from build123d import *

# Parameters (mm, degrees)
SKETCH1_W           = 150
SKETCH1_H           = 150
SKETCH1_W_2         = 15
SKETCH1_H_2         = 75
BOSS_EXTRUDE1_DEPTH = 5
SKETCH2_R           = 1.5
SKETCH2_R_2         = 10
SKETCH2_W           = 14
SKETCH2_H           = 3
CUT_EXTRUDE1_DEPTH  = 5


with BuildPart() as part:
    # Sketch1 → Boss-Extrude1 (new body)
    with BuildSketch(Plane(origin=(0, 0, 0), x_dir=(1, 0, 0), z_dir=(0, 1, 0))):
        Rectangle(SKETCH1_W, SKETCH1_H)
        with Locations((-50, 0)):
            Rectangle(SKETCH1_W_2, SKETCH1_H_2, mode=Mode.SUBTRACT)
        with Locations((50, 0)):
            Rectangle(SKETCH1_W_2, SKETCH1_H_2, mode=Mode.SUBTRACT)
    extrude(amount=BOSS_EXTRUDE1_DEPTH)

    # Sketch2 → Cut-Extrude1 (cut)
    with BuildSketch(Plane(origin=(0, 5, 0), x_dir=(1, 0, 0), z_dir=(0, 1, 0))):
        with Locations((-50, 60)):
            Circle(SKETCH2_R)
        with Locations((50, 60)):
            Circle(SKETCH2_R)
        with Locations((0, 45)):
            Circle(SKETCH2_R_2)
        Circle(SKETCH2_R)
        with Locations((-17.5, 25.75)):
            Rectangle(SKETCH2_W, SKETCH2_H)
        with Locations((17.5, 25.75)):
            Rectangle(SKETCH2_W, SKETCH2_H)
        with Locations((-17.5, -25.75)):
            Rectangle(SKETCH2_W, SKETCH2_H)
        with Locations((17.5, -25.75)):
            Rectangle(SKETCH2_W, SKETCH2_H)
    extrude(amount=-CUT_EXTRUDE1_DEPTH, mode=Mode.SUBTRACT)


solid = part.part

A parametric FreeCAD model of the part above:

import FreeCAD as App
import Part
import Sketcher
from FreeCAD import Vector


def add_polygon(sketch, points):
    """Adds a closed chain of lines whose ends are joined by coincident constraints."""
    first, n = sketch.GeometryCount, len(points)
    for a, b in zip(points, points[1:] + points[:1]):
        sketch.addGeometry(Part.LineSegment(App.Vector(*a, 0), App.Vector(*b, 0)), False)
    for i in range(n):
        sketch.addConstraint(Sketcher.Constraint("Coincident", first + i, 2, first + (i + 1) % n, 1))

doc = App.newDocument("Part")
body = doc.addObject("PartDesign::Body", "Body")

# Sketch on XZ plane
sketch1 = doc.addObject("Sketcher::SketchObject", "Sketch")
body.addObject(sketch1)
sketch1.AttachmentSupport = (doc.XZ_Plane, [""])
sketch1.MapMode = "FlatFace"
add_polygon(sketch1, [(-75, -75), (-75, 75), (75, 75), (75, -75)])  # lines 0-3
add_polygon(sketch1, [(-42, 38), (-58, 38), (-58, -38), (-42, -38)])  # lines 4-7
add_polygon(sketch1, [(58, 38), (42, 38), (42, -38), (58, -38)])  # lines 8-11
sketch1.addConstraint([
    Sketcher.Constraint("Vertical", 0),
    Sketcher.Constraint("Horizontal", 1),
    Sketcher.Constraint("Vertical", 2),
    Sketcher.Constraint("Horizontal", 3),
    Sketcher.Constraint("Horizontal", 4),
    Sketcher.Constraint("Vertical", 5),
    Sketcher.Constraint("Horizontal", 6),
    Sketcher.Constraint("Vertical", 7),
    Sketcher.Constraint("Horizontal", 8),
    Sketcher.Constraint("Vertical", 9),
    Sketcher.Constraint("Horizontal", 10),
    Sketcher.Constraint("Vertical", 11),
    Sketcher.Constraint("Symmetric", 0, 2, 2, 2, -1, 1),
    Sketcher.Constraint("Symmetric", 6, 2, 8, 2, -1, 1),
    Sketcher.Constraint("Symmetric", 4, 2, 10, 2, -1, 1),
    Sketcher.Constraint("Horizontal", 7, 2, 8, 2),
    Sketcher.Constraint("Equal", 3, 0),
    Sketcher.Constraint("DistanceX", 1, 1, 1, 2, 150.0),
    Sketcher.Constraint("DistanceX", 4, 2, 4, 1, 15.0),
    Sketcher.Constraint("DistanceY", 5, 2, 5, 1, 75.0),
    Sketcher.Constraint("DistanceX", 7, 2, 8, 2, 85.0),
])
pad1 = doc.addObject("PartDesign::Pad", "Pad")
body.addObject(pad1)
pad1.Profile = sketch1
pad1.Length = 5
pad1.Reversed = True

# Sketch on XZ plane
sketch2 = doc.addObject("Sketcher::SketchObject", "Sketch001")
body.addObject(sketch2)
sketch2.AttachmentSupport = (doc.XZ_Plane, [""])
sketch2.MapMode = "FlatFace"
sketch2.AttachmentOffset = App.Placement(Vector(0, 0, -5), App.Rotation())
sketch2.addGeometry(Part.Circle(Vector(-50, -60, 0), Vector(0, 0, 1), 1.5), False)  # 0
sketch2.addGeometry(Part.Circle(Vector(50, -60, 0), Vector(0, 0, 1), 1.5), False)  # 1
sketch2.addGeometry(Part.Circle(Vector(0, -45, 0), Vector(0, 0, 1), 10), False)  # 2
sketch2.addGeometry(Part.Circle(Vector(0, 0, 0), Vector(0, 0, 1), 1.5), False)  # 3
add_polygon(sketch2, [(-24.5, -27.2), (-24.5, -24.2), (-10.5, -24.2), (-10.5, -27.2)])  # lines 4-7
add_polygon(sketch2, [(10.5, -27.2), (10.5, -24.2), (24.5, -24.2), (24.5, -27.2)])  # lines 8-11
add_polygon(sketch2, [(-24.5, 24.2), (-24.5, 27.2), (-10.5, 27.2), (-10.5, 24.2)])  # lines 12-15
add_polygon(sketch2, [(10.5, 24.2), (10.5, 27.2), (24.5, 27.2), (24.5, 24.2)])  # lines 16-19
sketch2.addConstraint([
    Sketcher.Constraint("Vertical", 4),
    Sketcher.Constraint("Horizontal", 5),
    Sketcher.Constraint("Vertical", 6),
    Sketcher.Constraint("Horizontal", 7),
    Sketcher.Constraint("Vertical", 8),
    Sketcher.Constraint("Horizontal", 9),
    Sketcher.Constraint("Vertical", 10),
    Sketcher.Constraint("Horizontal", 11),
    Sketcher.Constraint("Vertical", 12),
    Sketcher.Constraint("Horizontal", 13),
    Sketcher.Constraint("Vertical", 14),
    Sketcher.Constraint("Horizontal", 15),
    Sketcher.Constraint("Vertical", 16),
    Sketcher.Constraint("Horizontal", 17),
    Sketcher.Constraint("Vertical", 18),
    Sketcher.Constraint("Horizontal", 19),
    Sketcher.Constraint("Coincident", 3, 3, -1, 1),
    Sketcher.Constraint("Equal", 0, 1),
    Sketcher.Constraint("Equal", 1, 3),
    Sketcher.Constraint("Symmetric", 10, 2, 12, 2, -1, 1),
    Sketcher.Constraint("Symmetric", 8, 2, 14, 2, -1, 1),
    Sketcher.Constraint("Symmetric", 6, 2, 16, 2, -1, 1),
    Sketcher.Constraint("Symmetric", 4, 2, 18, 2, -1, 1),
    Sketcher.Constraint("Symmetric", 0, 3, 1, 3, -2),
    Sketcher.Constraint("Symmetric", 5, 2, 8, 2, -2),
    Sketcher.Constraint("Symmetric", 7, 2, 10, 2, -2),
    Sketcher.Constraint("PointOnObject", 2, 3, -2),
    Sketcher.Constraint("Diameter", 0, 3.0),
    Sketcher.Constraint("Diameter", 2, 20.0),
    Sketcher.Constraint("DistanceX", 5, 1, 5, 2, 14.0),
    Sketcher.Constraint("DistanceY", 4, 1, 4, 2, 3.0),
    Sketcher.Constraint("DistanceX", 0, 3, -1, 1, 50.0),
    Sketcher.Constraint("DistanceY", 0, 3, -1, 1, 60.0),
    Sketcher.Constraint("DistanceY", 2, 3, -1, 1, 45.0),
    Sketcher.Constraint("DistanceX", 5, 2, 8, 2, 21.0),
    Sketcher.Constraint("DistanceY", 4, 2, 12, 2, 51.5),
])
pocket1 = doc.addObject("PartDesign::Pocket", "Pocket")
body.addObject(pocket1)
pocket1.Profile = sketch2
pocket1.Length = 5
pocket1.Reversed = True

doc.recompute()
